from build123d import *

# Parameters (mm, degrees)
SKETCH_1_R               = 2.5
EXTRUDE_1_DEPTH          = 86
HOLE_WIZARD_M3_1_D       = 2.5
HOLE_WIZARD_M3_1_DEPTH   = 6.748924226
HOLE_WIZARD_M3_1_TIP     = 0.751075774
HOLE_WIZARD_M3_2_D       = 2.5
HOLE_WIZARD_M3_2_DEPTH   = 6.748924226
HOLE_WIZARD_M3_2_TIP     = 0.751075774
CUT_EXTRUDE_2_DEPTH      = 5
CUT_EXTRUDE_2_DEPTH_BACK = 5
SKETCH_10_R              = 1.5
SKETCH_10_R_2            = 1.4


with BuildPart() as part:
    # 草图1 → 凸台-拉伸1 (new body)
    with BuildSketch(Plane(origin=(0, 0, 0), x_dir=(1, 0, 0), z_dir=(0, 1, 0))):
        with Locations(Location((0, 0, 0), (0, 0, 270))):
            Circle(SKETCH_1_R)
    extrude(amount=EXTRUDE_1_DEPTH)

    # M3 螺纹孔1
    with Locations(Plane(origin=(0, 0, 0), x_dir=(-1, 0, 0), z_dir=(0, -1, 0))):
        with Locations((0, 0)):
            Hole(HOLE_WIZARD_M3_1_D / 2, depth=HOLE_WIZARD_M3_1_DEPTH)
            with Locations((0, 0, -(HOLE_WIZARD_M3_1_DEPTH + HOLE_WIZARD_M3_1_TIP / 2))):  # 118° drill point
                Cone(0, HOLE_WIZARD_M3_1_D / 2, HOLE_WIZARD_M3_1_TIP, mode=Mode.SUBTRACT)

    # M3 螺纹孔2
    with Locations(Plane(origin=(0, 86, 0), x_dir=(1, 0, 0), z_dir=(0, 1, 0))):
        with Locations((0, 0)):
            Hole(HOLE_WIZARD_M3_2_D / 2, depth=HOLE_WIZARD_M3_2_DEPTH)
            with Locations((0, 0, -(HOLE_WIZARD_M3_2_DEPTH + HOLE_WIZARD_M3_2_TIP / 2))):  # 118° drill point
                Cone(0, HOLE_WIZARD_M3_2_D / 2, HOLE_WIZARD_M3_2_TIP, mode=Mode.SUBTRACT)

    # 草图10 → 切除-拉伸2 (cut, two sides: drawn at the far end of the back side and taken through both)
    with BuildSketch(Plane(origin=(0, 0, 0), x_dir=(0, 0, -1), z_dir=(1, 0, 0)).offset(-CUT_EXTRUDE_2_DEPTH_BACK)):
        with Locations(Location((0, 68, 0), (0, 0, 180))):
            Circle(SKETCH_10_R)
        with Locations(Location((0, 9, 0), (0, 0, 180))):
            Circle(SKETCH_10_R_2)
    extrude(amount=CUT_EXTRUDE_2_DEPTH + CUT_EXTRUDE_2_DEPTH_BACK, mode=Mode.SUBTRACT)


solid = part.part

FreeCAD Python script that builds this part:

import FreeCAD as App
import Part
import Sketcher

V = App.Vector
Q = App.Units.Quantity

doc = App.newDocument("Part")
body = doc.addObject("PartDesign::Body", "Body")

sketch1 = body.newObject("Sketcher::SketchObject", "Sketch")
sketch1.AttachmentSupport = (doc.getObject("XZ_Plane"), [""])
sketch1.MapMode = "FlatFace"
sketch1.addGeometry(Part.Circle(V(0, 0, 0), V(0, 0, 1), 2.5), False)
sketch1.addConstraint(Sketcher.Constraint("Coincident", 0, 3, -1, 1))
sketch1.addConstraint(Sketcher.Constraint("Diameter", 0, Q("5 mm")))
pad1 = body.newObject("PartDesign::Pad", "Pad")
pad1.Profile = sketch1
pad1.Length = 86
pad1.Reversed = True

sketch2 = body.newObject("Sketcher::SketchObject", "Sketch001")
sketch2.AttachmentSupport = (doc.getObject("XZ_Plane"), [""])
sketch2.MapMode = "FlatFace"
sketch2.addGeometry(Part.Circle(V(0, 0, 0), V(0, 0, 1), 1.25), False)
sketch2.addConstraint(Sketcher.Constraint("Coincident", 0, 3, -1, 1))
sketch2.addConstraint(Sketcher.Constraint("Diameter", 0, Q("2.5 mm")))
doc.recompute()
hole = body.newObject("PartDesign::Hole", "Hole")
hole.Profile = sketch2
hole.ThreadType = "None"
hole.Diameter = 2.5
hole.DepthType = "Dimension"
hole.Depth = 6.748924
hole.DrillPoint = "Angled"
hole.DrillPointAngle = 118

sketch3 = body.newObject("Sketcher::SketchObject", "Sketch002")
sketch3.AttachmentSupport = (doc.getObject("XZ_Plane"), [""])
sketch3.MapMode = "FlatFace"
sketch3.AttachmentOffset = App.Placement(V(0, 0, -86), App.Rotation())
sketch3.addGeometry(Part.Circle(V(0, 0, 0), V(0, 0, 1), 1.25), False)
sketch3.addConstraint(Sketcher.Constraint("Coincident", 0, 3, -1, 1))
sketch3.addConstraint(Sketcher.Constraint("Diameter", 0, Q("2.5 mm")))
doc.recompute()
hole2 = body.newObject("PartDesign::Hole", "Hole001")
hole2.Profile = sketch3
hole2.ThreadType = "None"
hole2.Diameter = 2.5
hole2.DepthType = "Dimension"
hole2.Depth = 6.748924
hole2.DrillPoint = "Angled"
hole2.DrillPointAngle = 118
hole2.Reversed = True

sketch4 = body.newObject("Sketcher::SketchObject", "Sketch003")
sketch4.AttachmentSupport = (doc.getObject("YZ_Plane"), [""])
sketch4.MapMode = "FlatFace"
sketch4.addGeometry(Part.Circle(V(68, 0, 0), V(0, 0, 1), 1.5), False)
sketch4.addGeometry(Part.Circle(V(9, 0, 0), V(0, 0, 1), 1.4), False)
sketch4.addConstraint(Sketcher.Constraint("PointOnObject", 0, 3, -1))
sketch4.addConstraint(Sketcher.Constraint("PointOnObject", 1, 3, -1))
sketch4.addConstraint(Sketcher.Constraint("Diameter", 0, Q("3 mm")))
sketch4.addConstraint(Sketcher.Constraint("Diameter", 1, Q("2.8 mm")))
sketch4.addConstraint(Sketcher.Constraint("DistanceX", -1, 1, 0, 3, Q("68 mm")))
sketch4.addConstraint(Sketcher.Constraint("DistanceX", -1, 1, 1, 3, Q("9 mm")))
pocket1 = body.newObject("PartDesign::Pocket", "Pocket")
pocket1.Profile = sketch4
pocket1.Type = "ThroughAll"
pocket1.Midplane = True

doc.recompute()
